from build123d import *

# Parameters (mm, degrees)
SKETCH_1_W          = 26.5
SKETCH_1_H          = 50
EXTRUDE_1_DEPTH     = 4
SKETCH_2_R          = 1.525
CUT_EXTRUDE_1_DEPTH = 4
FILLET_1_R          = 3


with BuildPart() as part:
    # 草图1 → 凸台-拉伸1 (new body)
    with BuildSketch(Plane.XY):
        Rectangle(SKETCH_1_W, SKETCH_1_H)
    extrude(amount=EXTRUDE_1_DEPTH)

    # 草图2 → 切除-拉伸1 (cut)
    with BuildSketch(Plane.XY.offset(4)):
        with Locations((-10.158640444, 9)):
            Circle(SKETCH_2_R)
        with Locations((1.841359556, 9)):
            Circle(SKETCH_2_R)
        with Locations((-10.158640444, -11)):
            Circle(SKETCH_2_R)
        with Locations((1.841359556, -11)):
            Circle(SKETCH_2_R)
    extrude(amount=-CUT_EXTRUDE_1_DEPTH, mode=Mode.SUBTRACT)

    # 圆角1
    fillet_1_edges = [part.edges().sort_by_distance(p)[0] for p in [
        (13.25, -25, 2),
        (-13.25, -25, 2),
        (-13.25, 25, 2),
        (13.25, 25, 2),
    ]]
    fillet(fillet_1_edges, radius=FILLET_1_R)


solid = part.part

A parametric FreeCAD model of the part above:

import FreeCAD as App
import Part
import Sketcher

V = App.Vector


def edges_at(feature, points):
    """Names of the edges that pass closest to the given points."""
    edges = feature.Shape.Edges
    near = lambda p: min(range(len(edges)), key=lambda i: edges[i].distToShape(Part.Vertex(*p))[0])
    return sorted({f"Edge{near(p) + 1}" for p in points})


def add_polygon(sketch, points):
    """Adds a closed chain of lines whose ends are joined by coincident constraints."""
    first, n = sketch.GeometryCount, len(points)
    for a, b in zip(points, points[1:] + points[:1]):
        sketch.addGeometry(Part.LineSegment(App.Vector(*a, 0), App.Vector(*b, 0)), False)
    for i in range(n):
        sketch.addConstraint(Sketcher.Constraint("Coincident", first + i, 2, first + (i + 1) % n, 1))

doc = App.newDocument("Part")
body = doc.addObject("PartDesign::Body", "Body")

# Sketch on XY plane
sketch1 = doc.addObject("Sketcher::SketchObject", "Sketch")
body.addObject(sketch1)
sketch1.AttachmentSupport = (doc.XY_Plane, [""])
sketch1.MapMode = "FlatFace"
add_polygon(sketch1, [(-13.25, 25), (-13.25, -25), (13.25, -25), (13.25, 25)])  # lines 0-3
sketch1.addConstraint([
    Sketcher.Constraint("Vertical", 0),
    Sketcher.Constraint("Horizontal", 1),
    Sketcher.Constraint("Vertical", 2),
    Sketcher.Constraint("Horizontal", 3),
    Sketcher.Constraint("Symmetric", 0, 2, 2, 2, -1, 1),
    Sketcher.Constraint("DistanceY", 0, 2, 0, 1, 50.0),
    Sketcher.Constraint("DistanceX", 1, 1, 1, 2, 26.5),
])
pad1 = doc.addObject("PartDesign::Pad", "Pad")
body.addObject(pad1)
pad1.Profile = sketch1
pad1.Length = 4

# Sketch on XY plane
sketch2 = doc.addObject("Sketcher::SketchObject", "Sketch001")
body.addObject(sketch2)
sketch2.AttachmentSupport = (doc.XY_Plane, [""])
sketch2.MapMode = "FlatFace"
sketch2.AttachmentOffset = App.Placement(V(0, 0, 4), App.Rotation())
sketch2.addGeometry([
    Part.Circle(V(-10.15864, 9, 0), V(0, 0, 1), 1.525),
    Part.Circle(V(1.84136, 9, 0), V(0, 0, 1), 1.525),
    Part.Circle(V(-10.15864, -11, 0), V(0, 0, 1), 1.525),
    Part.Circle(V(1.84136, -11, 0), V(0, 0, 1), 1.525),
], False)
sketch2.addConstraint([
    Sketcher.Constraint("Equal", 0, 1),
    Sketcher.Constraint("Equal", 1, 2),
    Sketcher.Constraint("Equal", 2, 3),
    Sketcher.Constraint("Horizontal", 0, 3, 1, 3),
    Sketcher.Constraint("Horizontal", 2, 3, 3, 3),
    Sketcher.Constraint("Vertical", 0, 3, 2, 3),
    Sketcher.Constraint("Vertical", 1, 3, 3, 3),
    Sketcher.Constraint("Diameter", 0, 3.05),
    Sketcher.Constraint("DistanceY", -1, 1, 0, 3, 9.0),
    Sketcher.Constraint("DistanceY", 2, 3, -1, 1, 11.0),
    Sketcher.Constraint("DistanceX", 0, 3, 1, 3, 12.0),
    Sketcher.Constraint("DistanceX", 0, 3, -1, 1, 10.15864),
])
pocket1 = doc.addObject("PartDesign::Pocket", "Pocket")
body.addObject(pocket1)
pocket1.Profile = sketch2
pocket1.Length = 4
doc.recompute()

fillet = doc.addObject("PartDesign::Fillet", "Fillet")
body.addObject(fillet)
fillet.Base = (pocket1, edges_at(pocket1, [
    (13.25, -25, 2),
    (-13.25, -25, 2),
    (-13.25, 25, 2),
    (13.25, 25, 2),
]))
fillet.Radius = 3

doc.recompute()
